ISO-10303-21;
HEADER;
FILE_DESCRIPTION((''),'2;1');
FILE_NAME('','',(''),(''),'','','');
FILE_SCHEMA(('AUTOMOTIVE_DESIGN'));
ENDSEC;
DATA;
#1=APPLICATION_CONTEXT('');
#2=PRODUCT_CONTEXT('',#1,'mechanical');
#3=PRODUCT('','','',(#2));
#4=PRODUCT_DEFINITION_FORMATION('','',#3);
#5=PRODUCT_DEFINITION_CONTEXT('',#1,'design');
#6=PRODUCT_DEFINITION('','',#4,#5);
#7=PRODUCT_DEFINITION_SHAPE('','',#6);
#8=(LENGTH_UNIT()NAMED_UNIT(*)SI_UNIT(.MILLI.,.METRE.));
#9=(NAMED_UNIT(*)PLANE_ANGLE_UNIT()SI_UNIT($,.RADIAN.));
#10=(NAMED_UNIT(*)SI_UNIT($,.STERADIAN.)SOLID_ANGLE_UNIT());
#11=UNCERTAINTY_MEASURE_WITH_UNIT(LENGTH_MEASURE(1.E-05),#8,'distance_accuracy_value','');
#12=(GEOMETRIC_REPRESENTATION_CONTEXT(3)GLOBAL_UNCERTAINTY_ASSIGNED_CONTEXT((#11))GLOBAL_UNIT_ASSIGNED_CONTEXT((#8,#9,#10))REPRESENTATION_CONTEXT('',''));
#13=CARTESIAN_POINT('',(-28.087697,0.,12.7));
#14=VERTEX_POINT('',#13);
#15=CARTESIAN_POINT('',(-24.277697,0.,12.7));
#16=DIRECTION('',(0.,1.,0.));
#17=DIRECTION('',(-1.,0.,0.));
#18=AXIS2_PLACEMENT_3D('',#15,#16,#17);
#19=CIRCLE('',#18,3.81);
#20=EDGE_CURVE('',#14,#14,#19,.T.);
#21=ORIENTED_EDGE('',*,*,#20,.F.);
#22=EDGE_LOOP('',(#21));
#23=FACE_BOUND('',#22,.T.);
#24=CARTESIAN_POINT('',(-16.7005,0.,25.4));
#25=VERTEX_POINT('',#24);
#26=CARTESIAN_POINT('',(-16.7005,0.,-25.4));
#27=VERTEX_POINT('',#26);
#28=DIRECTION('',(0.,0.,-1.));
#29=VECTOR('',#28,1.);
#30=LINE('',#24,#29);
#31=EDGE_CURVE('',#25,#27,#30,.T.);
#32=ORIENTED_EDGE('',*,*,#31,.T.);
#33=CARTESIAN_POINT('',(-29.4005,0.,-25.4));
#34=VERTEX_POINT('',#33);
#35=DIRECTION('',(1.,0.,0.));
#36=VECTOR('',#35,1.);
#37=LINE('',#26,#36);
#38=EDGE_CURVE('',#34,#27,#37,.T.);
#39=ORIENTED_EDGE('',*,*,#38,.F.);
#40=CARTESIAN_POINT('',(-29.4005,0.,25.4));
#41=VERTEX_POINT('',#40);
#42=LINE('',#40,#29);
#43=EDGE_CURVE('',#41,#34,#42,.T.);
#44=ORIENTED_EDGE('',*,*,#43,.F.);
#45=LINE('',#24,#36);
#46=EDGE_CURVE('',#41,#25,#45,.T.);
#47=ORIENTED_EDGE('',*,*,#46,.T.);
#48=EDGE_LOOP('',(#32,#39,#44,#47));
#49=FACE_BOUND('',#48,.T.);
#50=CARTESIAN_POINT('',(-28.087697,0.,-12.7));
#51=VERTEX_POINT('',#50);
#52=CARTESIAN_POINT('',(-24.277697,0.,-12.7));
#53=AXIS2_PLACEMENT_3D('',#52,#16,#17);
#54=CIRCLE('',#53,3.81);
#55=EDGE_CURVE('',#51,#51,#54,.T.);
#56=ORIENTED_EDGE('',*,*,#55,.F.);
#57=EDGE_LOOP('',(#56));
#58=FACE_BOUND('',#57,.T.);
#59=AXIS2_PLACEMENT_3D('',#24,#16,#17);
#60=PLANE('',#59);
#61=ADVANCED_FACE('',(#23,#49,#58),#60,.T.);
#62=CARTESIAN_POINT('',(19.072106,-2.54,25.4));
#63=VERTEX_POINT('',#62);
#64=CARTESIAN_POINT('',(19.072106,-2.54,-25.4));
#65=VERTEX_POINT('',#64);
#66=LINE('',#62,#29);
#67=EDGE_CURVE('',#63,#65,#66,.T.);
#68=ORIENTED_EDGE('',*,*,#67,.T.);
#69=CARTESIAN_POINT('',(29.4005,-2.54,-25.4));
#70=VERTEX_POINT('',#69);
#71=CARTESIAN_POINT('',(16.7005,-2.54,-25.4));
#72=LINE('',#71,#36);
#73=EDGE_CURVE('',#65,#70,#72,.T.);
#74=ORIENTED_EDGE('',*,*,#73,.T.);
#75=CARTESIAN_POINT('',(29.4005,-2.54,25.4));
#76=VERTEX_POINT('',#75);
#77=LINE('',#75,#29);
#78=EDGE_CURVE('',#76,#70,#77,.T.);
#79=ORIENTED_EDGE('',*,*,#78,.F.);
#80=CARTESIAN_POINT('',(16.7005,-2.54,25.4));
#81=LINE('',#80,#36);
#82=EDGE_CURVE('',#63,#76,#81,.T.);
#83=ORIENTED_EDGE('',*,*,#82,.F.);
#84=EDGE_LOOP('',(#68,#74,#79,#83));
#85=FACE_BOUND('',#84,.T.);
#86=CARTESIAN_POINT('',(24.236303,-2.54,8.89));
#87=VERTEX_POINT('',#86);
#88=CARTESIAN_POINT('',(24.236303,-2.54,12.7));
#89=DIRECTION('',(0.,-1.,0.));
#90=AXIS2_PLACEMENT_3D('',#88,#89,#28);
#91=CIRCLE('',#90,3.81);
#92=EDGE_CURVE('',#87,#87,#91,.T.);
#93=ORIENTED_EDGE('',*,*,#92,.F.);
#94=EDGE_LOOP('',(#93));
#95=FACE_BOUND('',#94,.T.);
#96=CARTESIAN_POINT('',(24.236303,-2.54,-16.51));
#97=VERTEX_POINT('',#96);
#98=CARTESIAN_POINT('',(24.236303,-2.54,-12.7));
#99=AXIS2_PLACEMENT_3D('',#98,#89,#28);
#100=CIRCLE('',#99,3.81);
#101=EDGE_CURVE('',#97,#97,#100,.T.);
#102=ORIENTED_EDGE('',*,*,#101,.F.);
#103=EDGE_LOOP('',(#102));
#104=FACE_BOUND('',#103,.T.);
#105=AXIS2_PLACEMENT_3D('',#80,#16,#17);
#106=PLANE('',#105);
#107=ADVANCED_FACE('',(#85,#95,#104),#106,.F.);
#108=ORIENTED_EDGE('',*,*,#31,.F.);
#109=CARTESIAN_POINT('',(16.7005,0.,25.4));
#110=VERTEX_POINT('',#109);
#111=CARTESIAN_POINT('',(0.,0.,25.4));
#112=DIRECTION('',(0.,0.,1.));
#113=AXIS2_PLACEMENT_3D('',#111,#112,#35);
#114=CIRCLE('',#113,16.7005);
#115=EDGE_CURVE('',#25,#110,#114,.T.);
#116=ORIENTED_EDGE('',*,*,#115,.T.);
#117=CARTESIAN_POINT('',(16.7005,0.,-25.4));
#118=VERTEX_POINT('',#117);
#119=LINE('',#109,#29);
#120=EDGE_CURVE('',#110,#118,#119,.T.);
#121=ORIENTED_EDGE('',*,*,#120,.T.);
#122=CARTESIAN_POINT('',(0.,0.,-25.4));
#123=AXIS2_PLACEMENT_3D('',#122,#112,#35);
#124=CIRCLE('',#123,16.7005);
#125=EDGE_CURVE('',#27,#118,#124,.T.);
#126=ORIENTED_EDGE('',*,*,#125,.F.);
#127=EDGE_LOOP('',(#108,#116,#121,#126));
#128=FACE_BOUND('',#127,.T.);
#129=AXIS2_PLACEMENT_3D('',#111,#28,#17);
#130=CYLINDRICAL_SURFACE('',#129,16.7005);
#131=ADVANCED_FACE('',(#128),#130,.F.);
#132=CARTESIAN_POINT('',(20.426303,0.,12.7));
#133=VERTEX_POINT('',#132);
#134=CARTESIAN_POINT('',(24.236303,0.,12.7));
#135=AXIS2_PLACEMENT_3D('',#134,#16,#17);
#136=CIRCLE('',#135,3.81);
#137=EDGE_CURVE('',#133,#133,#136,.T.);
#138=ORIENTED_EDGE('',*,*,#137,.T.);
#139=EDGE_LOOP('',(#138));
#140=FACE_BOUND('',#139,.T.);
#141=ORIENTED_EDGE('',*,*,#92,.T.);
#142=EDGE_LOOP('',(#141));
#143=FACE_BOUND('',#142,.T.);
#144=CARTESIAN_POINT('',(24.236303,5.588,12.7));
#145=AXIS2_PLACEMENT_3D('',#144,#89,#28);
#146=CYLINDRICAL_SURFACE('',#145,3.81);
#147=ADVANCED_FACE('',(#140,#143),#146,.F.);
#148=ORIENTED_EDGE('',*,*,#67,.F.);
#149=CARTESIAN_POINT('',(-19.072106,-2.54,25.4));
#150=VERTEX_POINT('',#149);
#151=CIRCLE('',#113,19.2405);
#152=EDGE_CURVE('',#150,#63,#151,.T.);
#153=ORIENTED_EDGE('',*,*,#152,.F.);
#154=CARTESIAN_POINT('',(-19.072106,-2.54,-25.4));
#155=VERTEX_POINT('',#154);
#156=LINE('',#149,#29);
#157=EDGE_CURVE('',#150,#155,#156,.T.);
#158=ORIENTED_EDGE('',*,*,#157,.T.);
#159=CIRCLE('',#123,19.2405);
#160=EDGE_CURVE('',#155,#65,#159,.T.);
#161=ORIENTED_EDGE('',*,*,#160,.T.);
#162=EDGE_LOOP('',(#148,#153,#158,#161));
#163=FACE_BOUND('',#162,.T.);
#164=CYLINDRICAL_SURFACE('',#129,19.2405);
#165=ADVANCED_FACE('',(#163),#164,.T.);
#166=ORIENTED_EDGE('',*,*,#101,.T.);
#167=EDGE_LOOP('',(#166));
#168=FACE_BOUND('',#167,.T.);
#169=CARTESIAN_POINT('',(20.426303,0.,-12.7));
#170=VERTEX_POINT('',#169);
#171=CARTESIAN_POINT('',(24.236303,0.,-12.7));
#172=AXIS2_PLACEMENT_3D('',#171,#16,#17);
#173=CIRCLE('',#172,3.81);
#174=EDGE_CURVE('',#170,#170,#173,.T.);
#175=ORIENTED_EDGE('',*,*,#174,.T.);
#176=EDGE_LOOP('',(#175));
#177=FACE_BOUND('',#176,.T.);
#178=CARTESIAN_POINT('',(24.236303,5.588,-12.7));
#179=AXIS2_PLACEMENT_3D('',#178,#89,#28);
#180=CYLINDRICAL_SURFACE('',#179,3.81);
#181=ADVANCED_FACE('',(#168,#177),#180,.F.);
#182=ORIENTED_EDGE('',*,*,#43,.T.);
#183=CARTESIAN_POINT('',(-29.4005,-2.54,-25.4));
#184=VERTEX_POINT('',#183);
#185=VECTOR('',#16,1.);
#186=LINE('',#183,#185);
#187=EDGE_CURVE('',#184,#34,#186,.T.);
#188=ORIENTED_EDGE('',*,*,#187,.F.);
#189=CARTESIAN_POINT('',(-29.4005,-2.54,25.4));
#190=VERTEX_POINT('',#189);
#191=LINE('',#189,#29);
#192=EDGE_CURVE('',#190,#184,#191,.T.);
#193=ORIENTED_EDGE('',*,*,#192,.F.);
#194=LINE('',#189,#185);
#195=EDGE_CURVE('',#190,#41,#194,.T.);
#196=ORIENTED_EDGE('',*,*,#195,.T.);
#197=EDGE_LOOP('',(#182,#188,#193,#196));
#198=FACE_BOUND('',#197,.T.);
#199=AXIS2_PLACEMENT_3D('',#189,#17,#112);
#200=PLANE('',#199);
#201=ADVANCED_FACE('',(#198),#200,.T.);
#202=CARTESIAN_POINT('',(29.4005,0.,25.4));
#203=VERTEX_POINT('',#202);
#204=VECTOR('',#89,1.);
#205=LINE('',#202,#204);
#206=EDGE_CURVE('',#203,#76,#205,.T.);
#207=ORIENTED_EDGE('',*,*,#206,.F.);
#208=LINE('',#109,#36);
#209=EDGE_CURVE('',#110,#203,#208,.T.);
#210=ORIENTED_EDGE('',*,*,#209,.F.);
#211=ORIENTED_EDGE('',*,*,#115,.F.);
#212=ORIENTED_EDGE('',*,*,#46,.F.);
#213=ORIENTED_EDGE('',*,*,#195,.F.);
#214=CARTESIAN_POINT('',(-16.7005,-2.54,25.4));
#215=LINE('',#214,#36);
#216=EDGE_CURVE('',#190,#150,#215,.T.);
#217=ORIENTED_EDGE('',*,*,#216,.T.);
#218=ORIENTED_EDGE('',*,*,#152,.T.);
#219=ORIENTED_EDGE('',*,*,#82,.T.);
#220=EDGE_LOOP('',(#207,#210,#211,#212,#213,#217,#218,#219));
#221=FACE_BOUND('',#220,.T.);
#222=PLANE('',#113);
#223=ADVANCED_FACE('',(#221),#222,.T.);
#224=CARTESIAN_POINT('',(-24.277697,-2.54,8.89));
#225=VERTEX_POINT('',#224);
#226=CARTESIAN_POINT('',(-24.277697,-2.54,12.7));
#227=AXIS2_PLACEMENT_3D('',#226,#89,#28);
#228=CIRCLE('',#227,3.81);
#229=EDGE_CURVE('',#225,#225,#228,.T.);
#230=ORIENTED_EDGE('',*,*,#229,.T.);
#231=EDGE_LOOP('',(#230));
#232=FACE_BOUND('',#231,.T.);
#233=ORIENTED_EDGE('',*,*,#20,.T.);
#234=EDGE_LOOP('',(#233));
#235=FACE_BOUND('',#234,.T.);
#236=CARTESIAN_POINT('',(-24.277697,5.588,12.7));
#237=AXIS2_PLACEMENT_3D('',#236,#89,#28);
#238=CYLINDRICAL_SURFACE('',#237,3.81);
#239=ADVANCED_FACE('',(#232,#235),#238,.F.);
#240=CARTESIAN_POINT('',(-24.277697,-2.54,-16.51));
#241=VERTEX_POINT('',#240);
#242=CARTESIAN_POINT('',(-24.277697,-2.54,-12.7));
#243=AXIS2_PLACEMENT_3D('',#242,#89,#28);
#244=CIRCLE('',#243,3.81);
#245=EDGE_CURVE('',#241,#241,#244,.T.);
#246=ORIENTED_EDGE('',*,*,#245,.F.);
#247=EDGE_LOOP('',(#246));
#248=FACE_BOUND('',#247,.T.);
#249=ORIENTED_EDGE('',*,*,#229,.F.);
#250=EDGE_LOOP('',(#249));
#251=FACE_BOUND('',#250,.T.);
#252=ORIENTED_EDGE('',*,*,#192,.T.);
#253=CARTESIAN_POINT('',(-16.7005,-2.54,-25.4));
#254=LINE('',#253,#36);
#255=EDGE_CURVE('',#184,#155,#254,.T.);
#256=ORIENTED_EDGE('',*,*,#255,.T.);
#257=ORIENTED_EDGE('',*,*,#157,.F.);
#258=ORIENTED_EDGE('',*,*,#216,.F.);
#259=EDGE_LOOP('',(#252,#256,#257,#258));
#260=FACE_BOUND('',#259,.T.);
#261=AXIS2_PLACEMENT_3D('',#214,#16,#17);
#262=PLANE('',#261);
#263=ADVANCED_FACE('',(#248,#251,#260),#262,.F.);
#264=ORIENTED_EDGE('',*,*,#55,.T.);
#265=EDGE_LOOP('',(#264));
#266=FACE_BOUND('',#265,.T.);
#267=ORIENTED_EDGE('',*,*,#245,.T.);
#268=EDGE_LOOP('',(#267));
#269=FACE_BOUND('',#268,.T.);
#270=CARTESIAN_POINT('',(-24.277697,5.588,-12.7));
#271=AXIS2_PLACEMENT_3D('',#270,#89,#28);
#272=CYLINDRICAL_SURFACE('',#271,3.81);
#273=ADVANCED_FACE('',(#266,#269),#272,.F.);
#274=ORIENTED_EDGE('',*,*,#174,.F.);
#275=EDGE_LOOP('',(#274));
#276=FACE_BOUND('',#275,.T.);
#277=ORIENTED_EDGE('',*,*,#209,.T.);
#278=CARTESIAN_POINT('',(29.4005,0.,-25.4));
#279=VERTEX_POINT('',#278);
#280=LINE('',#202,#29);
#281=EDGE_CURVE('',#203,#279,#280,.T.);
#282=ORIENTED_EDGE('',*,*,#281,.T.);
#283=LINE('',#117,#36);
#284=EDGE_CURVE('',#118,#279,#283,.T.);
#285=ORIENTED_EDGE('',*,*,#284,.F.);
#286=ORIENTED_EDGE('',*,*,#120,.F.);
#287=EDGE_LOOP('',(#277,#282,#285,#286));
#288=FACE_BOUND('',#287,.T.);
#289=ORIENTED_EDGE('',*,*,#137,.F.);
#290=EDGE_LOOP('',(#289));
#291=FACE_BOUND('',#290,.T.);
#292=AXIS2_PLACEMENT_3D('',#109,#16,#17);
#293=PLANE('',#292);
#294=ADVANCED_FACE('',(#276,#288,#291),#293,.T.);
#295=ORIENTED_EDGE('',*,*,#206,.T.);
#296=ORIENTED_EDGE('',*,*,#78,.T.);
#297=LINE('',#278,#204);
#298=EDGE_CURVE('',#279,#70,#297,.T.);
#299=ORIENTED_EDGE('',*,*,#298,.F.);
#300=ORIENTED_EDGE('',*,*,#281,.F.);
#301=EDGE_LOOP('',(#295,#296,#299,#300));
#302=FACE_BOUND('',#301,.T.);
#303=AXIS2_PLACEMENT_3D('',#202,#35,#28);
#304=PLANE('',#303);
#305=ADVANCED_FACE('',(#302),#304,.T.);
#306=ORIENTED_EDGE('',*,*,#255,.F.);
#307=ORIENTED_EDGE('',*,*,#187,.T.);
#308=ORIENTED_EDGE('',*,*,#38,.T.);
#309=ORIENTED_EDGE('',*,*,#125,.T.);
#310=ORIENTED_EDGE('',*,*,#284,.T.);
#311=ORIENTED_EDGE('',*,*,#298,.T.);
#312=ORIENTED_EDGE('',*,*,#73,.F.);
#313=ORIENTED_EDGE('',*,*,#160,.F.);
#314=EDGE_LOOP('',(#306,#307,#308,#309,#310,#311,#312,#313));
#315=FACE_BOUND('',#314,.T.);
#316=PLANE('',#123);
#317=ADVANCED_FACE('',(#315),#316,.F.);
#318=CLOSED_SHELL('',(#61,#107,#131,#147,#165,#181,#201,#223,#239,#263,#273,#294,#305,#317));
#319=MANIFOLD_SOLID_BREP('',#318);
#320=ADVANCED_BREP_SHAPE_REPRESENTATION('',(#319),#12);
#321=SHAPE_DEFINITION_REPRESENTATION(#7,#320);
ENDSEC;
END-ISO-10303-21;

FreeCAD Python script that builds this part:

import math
import FreeCAD as App
import Part
import Sketcher

V = App.Vector
Q = App.Units.Quantity

doc = App.newDocument("Part")
body = doc.addObject("PartDesign::Body", "Body")

# Sketch on XY plane
sketch1 = doc.addObject("Sketcher::SketchObject", "Sketch")
body.addObject(sketch1)
sketch1.AttachmentSupport = (doc.XY_Plane, [""])
sketch1.MapMode = "FlatFace"
sketch1.addGeometry([
    Part.LineSegment(V(29.4, 0, 0), V(16.7, 0, 0)),  # 0
    Part.ArcOfCircle(Part.Circle(V(0, 0, 0), V(0, 0, 1), 16.7), math.radians(180), math.radians(360)),  # 1
    Part.LineSegment(V(-16.7, 0, 0), V(-29.4, 0, 0)),  # 2
    Part.LineSegment(V(-29.4, 0, 0), V(-29.4, -2.5, 0)),  # 3
    Part.LineSegment(V(-29.4, -2.5, 0), V(-19.1, -2.5, 0)),  # 4
    Part.ArcOfCircle(Part.Circle(V(0, 0, 0), V(0, 0, 1), 19.2), math.radians(-172), math.radians(-8)),  # 5
    Part.LineSegment(V(19.1, -2.5, 0), V(29.4, -2.5, 0)),  # 6
    Part.LineSegment(V(29.4, -2.5, 0), V(29.4, 0, 0)),  # 7
], False)
sketch1.addConstraint([
    Sketcher.Constraint("Coincident", 0, 2, 1, 2),
    Sketcher.Constraint("Coincident", 1, 1, 2, 1),
    Sketcher.Constraint("Coincident", 2, 2, 3, 1),
    Sketcher.Constraint("Coincident", 3, 2, 4, 1),
    Sketcher.Constraint("Coincident", 4, 2, 5, 1),
    Sketcher.Constraint("Coincident", 5, 2, 6, 1),
    Sketcher.Constraint("Coincident", 6, 2, 7, 1),
    Sketcher.Constraint("Coincident", 7, 2, 0, 1),
    Sketcher.Constraint("Horizontal", 0),
    Sketcher.Constraint("Horizontal", 2),
    Sketcher.Constraint("Vertical", 3),
    Sketcher.Constraint("Horizontal", 4),
    Sketcher.Constraint("Horizontal", 6),
    Sketcher.Constraint("Vertical", 7),
    Sketcher.Constraint("Coincident", 1, 3, -1, 1),
    Sketcher.Constraint("Coincident", 5, 3, -1, 1),
    Sketcher.Constraint("Symmetric", 2, 2, 7, 2, -1, 1),
    Sketcher.Constraint("PointOnObject", 0, 2, -1),
    Sketcher.Constraint("Horizontal", 4, 2, 5, 2),
    Sketcher.Constraint("DistanceX", 0, 2, 0, 1, Q("0.5 in")),
    Sketcher.Constraint("DistanceY", 3, 2, 3, 1, Q("0.1 in")),
    Sketcher.Constraint("Radius", 1, Q("0.6575 in")),
    Sketcher.Constraint("Radius", 5, Q("0.7575 in")),
])
pad1 = doc.addObject("PartDesign::Pad", "Pad")
body.addObject(pad1)
pad1.Profile = sketch1
pad1.Length = Q("2 in")
pad1.Midplane = True

# Sketch on XZ plane
sketch2 = doc.addObject("Sketcher::SketchObject", "Sketch001")
body.addObject(sketch2)
sketch2.AttachmentSupport = (doc.XZ_Plane, [""])
sketch2.MapMode = "FlatFace"
sketch2.AttachmentOffset = App.Placement(V(0, 0, 0.1 * 25.4), App.Rotation())
sketch2.addGeometry([
    Part.Circle(V(24.2, -12.7, 0), V(0, 0, 1), 3.8),
    Part.Circle(V(24.2, 12.7, 0), V(0, 0, 1), 3.8),
    Part.Circle(V(-24.3, 12.7, 0), V(0, 0, 1), 3.8),
    Part.Circle(V(-24.3, -12.7, 0), V(0, 0, 1), 3.8),
], False)
sketch2.addConstraint([
    Sketcher.Constraint("Equal", 0, 1),
    Sketcher.Constraint("Equal", 1, 2),
    Sketcher.Constraint("Equal", 2, 3),
    Sketcher.Constraint("Symmetric", 0, 3, 1, 3, -1),
    Sketcher.Constraint("Symmetric", 2, 3, 3, 3, -1),
    Sketcher.Constraint("Horizontal", 1, 3, 2, 3),
    Sketcher.Constraint("Diameter", 0, Q("0.3 in")),
    Sketcher.Constraint("DistanceY", 0, 3, 1, 3, Q("1 in")),
    Sketcher.Constraint("DistanceX", 2, 3, 1, 3, Q("1.91 in")),
    Sketcher.Constraint("DistanceX", -1, 1, 0, 3, 24.236303),
])
pocket1 = doc.addObject("PartDesign::Pocket", "Pocket")
body.addObject(pocket1)
pocket1.Profile = sketch2
pocket1.Length = Q("0.32 in")

doc.recompute()
